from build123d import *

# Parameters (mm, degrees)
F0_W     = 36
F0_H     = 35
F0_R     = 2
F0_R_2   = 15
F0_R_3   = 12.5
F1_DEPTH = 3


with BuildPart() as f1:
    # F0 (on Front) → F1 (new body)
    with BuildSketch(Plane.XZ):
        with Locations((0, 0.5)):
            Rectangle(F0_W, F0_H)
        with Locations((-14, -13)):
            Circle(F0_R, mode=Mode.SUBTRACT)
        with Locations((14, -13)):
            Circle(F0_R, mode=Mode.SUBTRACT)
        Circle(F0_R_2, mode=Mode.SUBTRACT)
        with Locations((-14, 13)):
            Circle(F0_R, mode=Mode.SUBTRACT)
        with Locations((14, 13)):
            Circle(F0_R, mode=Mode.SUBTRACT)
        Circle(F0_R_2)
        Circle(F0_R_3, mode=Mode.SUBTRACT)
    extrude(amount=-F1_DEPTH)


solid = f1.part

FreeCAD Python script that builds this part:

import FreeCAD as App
import Part
import Sketcher

V = App.Vector
Q = App.Units.Quantity

doc = App.newDocument("Part")
params = doc.addObject("Spreadsheet::Sheet", "Params")
for row, (alias, value) in enumerate([
    ("sketch1_diameter", "4 mm"),
    ("sketch1_diameter2", "25 mm"),
    ("sketch1_width", "36 mm"),
    ("sketch1_height", "35 mm"),
    ("pad1_length", "3 mm"),
], start=1):
    params.set(f"A{row}", alias)
    params.set(f"B{row}", "=" + value)
    params.setAlias(f"B{row}", alias)

body = doc.addObject("PartDesign::Body", "Body")

# Sketch on XZ plane
sketch1 = doc.addObject("Sketcher::SketchObject", "Sketch")
body.addObject(sketch1)
sketch1.AttachmentSupport = (doc.XZ_Plane, [""])
sketch1.MapMode = "FlatFace"
sketch1.addGeometry(Part.LineSegment(V(-18, 18, 0), V(-18, -17, 0)), False)
sketch1.addGeometry(Part.LineSegment(V(-18, -17, 0), V(18, -17, 0)), False)
sketch1.addGeometry(Part.LineSegment(V(18, -17, 0), V(18, 18, 0)), False)
sketch1.addGeometry(Part.LineSegment(V(18, 18, 0), V(-18, 18, 0)), False)
sketch1.addGeometry(Part.Circle(V(-14, -13, 0), V(0, 0, 1), 2), False)
sketch1.addGeometry(Part.Circle(V(14, -13, 0), V(0, 0, 1), 2), False)
sketch1.addGeometry(Part.Circle(V(-14, 13, 0), V(0, 0, 1), 2), False)
sketch1.addGeometry(Part.Circle(V(0, 0, 0), V(0, 0, 1), 12.5), False)
sketch1.addGeometry(Part.Circle(V(14, 13, 0), V(0, 0, 1), 2), False)
sketch1.addConstraint(Sketcher.Constraint("Coincident", 0, 2, 1, 1))
sketch1.addConstraint(Sketcher.Constraint("Coincident", 1, 2, 2, 1))
sketch1.addConstraint(Sketcher.Constraint("Coincident", 2, 2, 3, 1))
sketch1.addConstraint(Sketcher.Constraint("Coincident", 3, 2, 0, 1))
sketch1.addConstraint(Sketcher.Constraint("Vertical", 0))
sketch1.addConstraint(Sketcher.Constraint("Horizontal", 1))
sketch1.addConstraint(Sketcher.Constraint("Vertical", 2))
sketch1.addConstraint(Sketcher.Constraint("Horizontal", 3))
sketch1.addConstraint(Sketcher.Constraint("Coincident", 7, 3, -1, 1))
sketch1.addConstraint(Sketcher.Constraint("Equal", 4, 5))
sketch1.addConstraint(Sketcher.Constraint("Equal", 5, 6))
sketch1.addConstraint(Sketcher.Constraint("Equal", 6, 8))
sketch1.addConstraint(Sketcher.Constraint("Symmetric", 5, 3, 6, 3, -1, 1))
sketch1.addConstraint(Sketcher.Constraint("Symmetric", 4, 3, 8, 3, -1, 1))
sketch1.addConstraint(Sketcher.Constraint("Symmetric", 4, 3, 5, 3, -2))
sketch1.addConstraint(Sketcher.Constraint("Diameter", 4, Q("4 mm")))
sketch1.addConstraint(Sketcher.Constraint("Diameter", 7, Q("25 mm")))
sketch1.addConstraint(Sketcher.Constraint("DistanceX", 1, 1, 1, 2, Q("36 mm")))
sketch1.addConstraint(Sketcher.Constraint("DistanceY", 0, 2, 0, 1, Q("35 mm")))
sketch1.addConstraint(Sketcher.Constraint("DistanceX", 4, 3, -1, 1, Q("14 mm")))
sketch1.addConstraint(Sketcher.Constraint("DistanceY", 4, 3, -1, 1, Q("13 mm")))
sketch1.addConstraint(Sketcher.Constraint("DistanceX", 0, 2, -1, 1, Q("18 mm")))
sketch1.addConstraint(Sketcher.Constraint("DistanceY", 0, 2, -1, 1, Q("17 mm")))
sketch1.setExpression("Constraints[15]", "Params.sketch1_diameter")
sketch1.setExpression("Constraints[16]", "Params.sketch1_diameter2")
sketch1.setExpression("Constraints[17]", "Params.sketch1_width")
sketch1.setExpression("Constraints[18]", "Params.sketch1_height")
pad1 = doc.addObject("PartDesign::Pad", "Pad")
body.addObject(pad1)
pad1.Profile = sketch1
pad1.setExpression("Length", "Params.pad1_length")
pad1.Reversed = True

doc.recompute()
